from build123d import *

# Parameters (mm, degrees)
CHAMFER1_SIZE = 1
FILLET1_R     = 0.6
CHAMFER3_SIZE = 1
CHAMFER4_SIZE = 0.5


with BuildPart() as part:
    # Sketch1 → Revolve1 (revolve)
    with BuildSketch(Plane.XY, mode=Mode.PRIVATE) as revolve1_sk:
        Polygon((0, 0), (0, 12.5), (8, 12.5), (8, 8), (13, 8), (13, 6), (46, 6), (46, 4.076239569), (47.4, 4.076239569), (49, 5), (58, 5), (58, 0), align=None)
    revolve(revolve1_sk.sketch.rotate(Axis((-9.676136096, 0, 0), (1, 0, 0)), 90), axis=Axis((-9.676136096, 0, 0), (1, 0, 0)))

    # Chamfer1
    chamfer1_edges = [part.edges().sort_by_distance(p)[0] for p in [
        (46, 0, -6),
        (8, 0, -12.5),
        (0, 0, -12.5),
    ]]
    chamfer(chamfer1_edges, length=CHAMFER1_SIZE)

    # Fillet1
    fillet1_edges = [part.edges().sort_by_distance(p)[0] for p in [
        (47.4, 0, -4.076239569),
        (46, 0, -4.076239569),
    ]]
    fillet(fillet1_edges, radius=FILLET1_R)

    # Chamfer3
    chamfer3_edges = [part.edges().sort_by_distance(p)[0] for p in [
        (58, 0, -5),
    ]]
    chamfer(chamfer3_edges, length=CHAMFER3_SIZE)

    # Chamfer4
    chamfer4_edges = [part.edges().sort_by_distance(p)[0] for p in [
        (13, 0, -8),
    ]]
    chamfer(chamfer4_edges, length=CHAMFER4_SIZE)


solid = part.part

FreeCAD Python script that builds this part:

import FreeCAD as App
import Part
import Sketcher
Q = App.Units.Quantity


def edges_at(feature, points):
    """Names of the edges that pass closest to the given points."""
    edges = feature.Shape.Edges
    near = lambda p: min(range(len(edges)), key=lambda i: edges[i].distToShape(Part.Vertex(*p))[0])
    return sorted({f"Edge{near(p) + 1}" for p in points})

doc = App.newDocument("Part")
params = doc.addObject("Spreadsheet::Sheet", "Params")
for row, (alias, value) in enumerate([
    ("sketch1_width", "58 mm"),
    ("sketch1_width2", "9 mm"),
    ("sketch1_width3", "33 mm"),
    ("sketch1_width4", "5 mm"),
    ("sketch1_width5", "8 mm"),
    ("revolution_angle", "360 deg"),
    ("chamfer_size", "1 mm"),
    ("fillet_radius", "0.6 mm"),
    ("chamfer2_size", "1 mm"),
    ("chamfer3_size", "0.5 mm"),
], start=1):
    params.set(f"A{row}", alias)
    params.set(f"B{row}", "=" + value)
    params.setAlias(f"B{row}", alias)

body = doc.addObject("PartDesign::Body", "Body")

# Sketch on XY plane
sketch1 = doc.addObject("Sketcher::SketchObject", "Sketch")
body.addObject(sketch1)
sketch1.AttachmentSupport = (doc.XY_Plane, [""])
sketch1.MapMode = "FlatFace"
sketch1.addGeometry(Part.LineSegment(App.Vector(0, 12.5, 0), App.Vector(0, 0, 0)), False)
sketch1.addGeometry(Part.LineSegment(App.Vector(0, 0, 0), App.Vector(58, 0, 0)), False)
sketch1.addGeometry(Part.LineSegment(App.Vector(58, 0, 0), App.Vector(58, 5, 0)), False)
sketch1.addGeometry(Part.LineSegment(App.Vector(58, 5, 0), App.Vector(49, 5, 0)), False)
sketch1.addGeometry(Part.LineSegment(App.Vector(49, 5, 0), App.Vector(47.4, 4.1, 0)), False)
sketch1.addGeometry(Part.LineSegment(App.Vector(47.4, 4.1, 0), App.Vector(46, 4.1, 0)), False)
sketch1.addGeometry(Part.LineSegment(App.Vector(46, 4.1, 0), App.Vector(46, 6, 0)), False)
sketch1.addGeometry(Part.LineSegment(App.Vector(46, 6, 0), App.Vector(13, 6, 0)), False)
sketch1.addGeometry(Part.LineSegment(App.Vector(13, 6, 0), App.Vector(13, 8, 0)), False)
sketch1.addGeometry(Part.LineSegment(App.Vector(13, 8, 0), App.Vector(8, 8, 0)), False)
sketch1.addGeometry(Part.LineSegment(App.Vector(8, 8, 0), App.Vector(8, 12.5, 0)), False)
sketch1.addGeometry(Part.LineSegment(App.Vector(8, 12.5, 0), App.Vector(0, 12.5, 0)), False)
sketch1.addConstraint(Sketcher.Constraint("Coincident", 0, 2, 1, 1))
sketch1.addConstraint(Sketcher.Constraint("Coincident", 1, 2, 2, 1))
sketch1.addConstraint(Sketcher.Constraint("Coincident", 2, 2, 3, 1))
sketch1.addConstraint(Sketcher.Constraint("Coincident", 3, 2, 4, 1))
sketch1.addConstraint(Sketcher.Constraint("Coincident", 4, 2, 5, 1))
sketch1.addConstraint(Sketcher.Constraint("Coincident", 5, 2, 6, 1))
sketch1.addConstraint(Sketcher.Constraint("Coincident", 6, 2, 7, 1))
sketch1.addConstraint(Sketcher.Constraint("Coincident", 7, 2, 8, 1))
sketch1.addConstraint(Sketcher.Constraint("Coincident", 8, 2, 9, 1))
sketch1.addConstraint(Sketcher.Constraint("Coincident", 9, 2, 10, 1))
sketch1.addConstraint(Sketcher.Constraint("Coincident", 10, 2, 11, 1))
sketch1.addConstraint(Sketcher.Constraint("Coincident", 11, 2, 0, 1))
sketch1.addConstraint(Sketcher.Constraint("Vertical", 0))
sketch1.addConstraint(Sketcher.Constraint("Horizontal", 1))
sketch1.addConstraint(Sketcher.Constraint("Vertical", 2))
sketch1.addConstraint(Sketcher.Constraint("Horizontal", 3))
sketch1.addConstraint(Sketcher.Constraint("Horizontal", 5))
sketch1.addConstraint(Sketcher.Constraint("Vertical", 6))
sketch1.addConstraint(Sketcher.Constraint("Horizontal", 7))
sketch1.addConstraint(Sketcher.Constraint("Vertical", 8))
sketch1.addConstraint(Sketcher.Constraint("Horizontal", 9))
sketch1.addConstraint(Sketcher.Constraint("Vertical", 10))
sketch1.addConstraint(Sketcher.Constraint("Horizontal", 11))
sketch1.addConstraint(Sketcher.Constraint("Coincident", 0, 2, -1, 1))
sketch1.addConstraint(Sketcher.Constraint("Equal", 9, 2))
sketch1.addConstraint(Sketcher.Constraint("DistanceX", 1, 1, 1, 2, Q("58 mm")))
sketch1.addConstraint(Sketcher.Constraint("DistanceX", 3, 2, 3, 1, Q("9 mm")))
sketch1.addConstraint(Sketcher.Constraint("DistanceX", 7, 2, 7, 1, Q("33 mm")))
sketch1.addConstraint(Sketcher.Constraint("DistanceX", 9, 2, 9, 1, Q("5 mm")))
sketch1.addConstraint(Sketcher.Constraint("DistanceX", 11, 2, 11, 1, Q("8 mm")))
sketch1.addConstraint(Sketcher.Constraint("DistanceY", 8, 1, 8, 2, Q("2 mm")))
sketch1.addConstraint(Sketcher.Constraint("Angle", 4, Q("-150 deg")))
sketch1.addConstraint(Sketcher.Constraint("DistanceX", 5, 2, 5, 1, Q("1.4 mm")))
sketch1.addConstraint(Sketcher.Constraint("DistanceY", 0, 2, 0, 1, Q("12.5 mm")))
sketch1.addConstraint(Sketcher.Constraint("DistanceY", 10, 1, 10, 2, Q("4.5 mm")))
sketch1.setExpression("Constraints[25]", "Params.sketch1_width")
sketch1.setExpression("Constraints[26]", "Params.sketch1_width2")
sketch1.setExpression("Constraints[27]", "Params.sketch1_width3")
sketch1.setExpression("Constraints[28]", "Params.sketch1_width4")
sketch1.setExpression("Constraints[29]", "Params.sketch1_width5")
revolution = doc.addObject("PartDesign::Revolution", "Revolution")
body.addObject(revolution)
revolution.Profile = sketch1
revolution.ReferenceAxis = (sketch1, ["H_Axis"])
revolution.setExpression("Angle", "Params.revolution_angle")
doc.recompute()

chamfer = doc.addObject("PartDesign::Chamfer", "Chamfer")
body.addObject(chamfer)
chamfer.Base = (revolution, edges_at(revolution, [(46, 0, -6), (8, 0, -12.5), (0, 0, -12.5)]))
chamfer.setExpression("Size", "Params.chamfer_size")
doc.recompute()

fillet = doc.addObject("PartDesign::Fillet", "Fillet")
body.addObject(fillet)
fillet.Base = (chamfer, edges_at(chamfer, [(47.4, 0, -4.076), (46, 0, -4.076)]))
fillet.setExpression("Radius", "Params.fillet_radius")
doc.recompute()

chamfer2 = doc.addObject("PartDesign::Chamfer", "Chamfer001")
body.addObject(chamfer2)
chamfer2.Base = (fillet, edges_at(fillet, [(58, 0, -5)]))
chamfer2.setExpression("Size", "Params.chamfer2_size")
doc.recompute()

chamfer3 = doc.addObject("PartDesign::Chamfer", "Chamfer002")
body.addObject(chamfer3)
chamfer3.Base = (chamfer2, edges_at(chamfer2, [(13, 0, -8)]))
chamfer3.setExpression("Size", "Params.chamfer3_size")

doc.recompute()
